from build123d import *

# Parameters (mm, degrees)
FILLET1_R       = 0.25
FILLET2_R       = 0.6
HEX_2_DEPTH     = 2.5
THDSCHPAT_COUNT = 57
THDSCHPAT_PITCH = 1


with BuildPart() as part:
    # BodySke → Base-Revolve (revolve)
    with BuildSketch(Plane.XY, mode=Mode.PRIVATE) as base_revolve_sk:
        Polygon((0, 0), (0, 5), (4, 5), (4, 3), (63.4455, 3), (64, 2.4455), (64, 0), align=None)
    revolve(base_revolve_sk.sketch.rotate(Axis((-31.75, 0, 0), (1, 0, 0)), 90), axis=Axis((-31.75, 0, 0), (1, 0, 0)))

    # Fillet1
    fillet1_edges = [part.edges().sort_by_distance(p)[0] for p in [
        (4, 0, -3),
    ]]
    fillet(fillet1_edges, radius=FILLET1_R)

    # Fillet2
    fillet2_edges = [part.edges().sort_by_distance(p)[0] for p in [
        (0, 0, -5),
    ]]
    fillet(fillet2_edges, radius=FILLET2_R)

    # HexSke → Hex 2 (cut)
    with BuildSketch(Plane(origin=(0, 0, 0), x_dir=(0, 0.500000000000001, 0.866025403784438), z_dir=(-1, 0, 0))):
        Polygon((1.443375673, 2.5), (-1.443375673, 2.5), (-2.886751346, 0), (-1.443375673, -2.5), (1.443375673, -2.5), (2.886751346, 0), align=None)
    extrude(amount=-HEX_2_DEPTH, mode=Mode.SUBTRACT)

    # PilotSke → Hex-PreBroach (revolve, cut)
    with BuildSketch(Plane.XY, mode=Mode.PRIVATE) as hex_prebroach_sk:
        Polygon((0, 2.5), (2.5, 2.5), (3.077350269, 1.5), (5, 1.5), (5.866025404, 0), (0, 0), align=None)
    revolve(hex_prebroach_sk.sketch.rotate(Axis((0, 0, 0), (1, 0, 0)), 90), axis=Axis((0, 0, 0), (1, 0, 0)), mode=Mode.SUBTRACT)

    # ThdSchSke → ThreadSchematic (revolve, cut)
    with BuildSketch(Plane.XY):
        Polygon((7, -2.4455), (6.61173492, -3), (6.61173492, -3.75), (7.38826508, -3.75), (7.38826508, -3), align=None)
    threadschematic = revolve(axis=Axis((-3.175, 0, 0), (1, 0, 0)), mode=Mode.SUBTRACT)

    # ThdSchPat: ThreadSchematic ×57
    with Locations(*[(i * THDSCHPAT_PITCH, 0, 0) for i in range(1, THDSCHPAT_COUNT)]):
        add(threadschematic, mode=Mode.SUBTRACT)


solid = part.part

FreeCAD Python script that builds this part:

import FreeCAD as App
import Part
import Sketcher
from FreeCAD import Vector
Q = App.Units.Quantity


def edges_at(feature, points):
    """Names of the edges that pass closest to the given points."""
    edges = feature.Shape.Edges
    near = lambda p: min(range(len(edges)), key=lambda i: edges[i].distToShape(Part.Vertex(*p))[0])
    return sorted({f"Edge{near(p) + 1}" for p in points})

doc = App.newDocument("Part")
body = doc.addObject("PartDesign::Body", "Body")

sketch1 = body.newObject("Sketcher::SketchObject", "Sketch")
sketch1.AttachmentSupport = (doc.getObject("XY_Plane"), [""])
sketch1.MapMode = "FlatFace"
sketch1.addGeometry([
    Part.LineSegment(Vector(0, 5, 0), Vector(0, 0, 0)),
    Part.LineSegment(Vector(0, 0, 0), Vector(64, 0, 0)),
    Part.LineSegment(Vector(64, 0, 0), Vector(64, 2.4, 0)),
    Part.LineSegment(Vector(64, 2.4, 0), Vector(63.4, 3, 0)),
    Part.LineSegment(Vector(63.4, 3, 0), Vector(4, 3, 0)),
    Part.LineSegment(Vector(4, 3, 0), Vector(4, 5, 0)),
    Part.LineSegment(Vector(4, 5, 0), Vector(0, 5, 0)),
], False)
sketch1.addConstraint([
    Sketcher.Constraint("Coincident", 0, 2, 1, 1),
    Sketcher.Constraint("Coincident", 1, 2, 2, 1),
    Sketcher.Constraint("Coincident", 2, 2, 3, 1),
    Sketcher.Constraint("Coincident", 3, 2, 4, 1),
    Sketcher.Constraint("Coincident", 4, 2, 5, 1),
    Sketcher.Constraint("Coincident", 5, 2, 6, 1),
    Sketcher.Constraint("Coincident", 6, 2, 0, 1),
    Sketcher.Constraint("Vertical", 0),
    Sketcher.Constraint("Horizontal", 1),
    Sketcher.Constraint("Vertical", 2),
    Sketcher.Constraint("Horizontal", 4),
    Sketcher.Constraint("Vertical", 5),
    Sketcher.Constraint("Horizontal", 6),
    Sketcher.Constraint("Coincident", 0, 2, -1, 1),
    Sketcher.Constraint("DistanceX", 1, 1, 1, 2, 64.0),
    Sketcher.Constraint("DistanceX", 6, 2, 6, 1, 4.0),
    Sketcher.Constraint("DistanceY", 0, 2, 0, 1, 5.0),
    Sketcher.Constraint("DistanceY", 5, 1, 5, 2, 2.0),
    Sketcher.Constraint("Angle", 3, Q("135 deg")),
    Sketcher.Constraint("DistanceX", 4, 2, 4, 1, 59.4455),
])
revolution = body.newObject("PartDesign::Revolution", "Revolution")
revolution.Profile = sketch1
revolution.ReferenceAxis = (sketch1, ["H_Axis"])
revolution.Angle = 360
doc.recompute()

fillet = body.newObject("PartDesign::Fillet", "Fillet")
fillet.Base = (revolution, edges_at(revolution, [(4, 0, -3)]))
fillet.Radius = 0.25
doc.recompute()

fillet2 = body.newObject("PartDesign::Fillet", "Fillet001")
fillet2.Base = (fillet, edges_at(fillet, [(0, 0, -5)]))
fillet2.Radius = 0.6

sketch2 = body.newObject("Sketcher::SketchObject", "Sketch001")
sketch2.AttachmentSupport = (doc.getObject("YZ_Plane"), [""])
sketch2.MapMode = "FlatFace"
sketch2.addGeometry([
    Part.LineSegment(Vector(2.9, 0, 0), Vector(1.4, -2.5, 0)),
    Part.LineSegment(Vector(1.4, -2.5, 0), Vector(-1.4, -2.5, 0)),
    Part.LineSegment(Vector(-1.4, -2.5, 0), Vector(-2.9, 0, 0)),
    Part.LineSegment(Vector(-2.9, 0, 0), Vector(-1.4, 2.5, 0)),
    Part.LineSegment(Vector(-1.4, 2.5, 0), Vector(1.4, 2.5, 0)),
    Part.LineSegment(Vector(1.4, 2.5, 0), Vector(2.9, 0, 0)),
], False)
sketch2.addConstraint([
    Sketcher.Constraint("Coincident", 0, 2, 1, 1),
    Sketcher.Constraint("Coincident", 1, 2, 2, 1),
    Sketcher.Constraint("Coincident", 2, 2, 3, 1),
    Sketcher.Constraint("Coincident", 3, 2, 4, 1),
    Sketcher.Constraint("Coincident", 4, 2, 5, 1),
    Sketcher.Constraint("Coincident", 5, 2, 0, 1),
    Sketcher.Constraint("Horizontal", 1),
    Sketcher.Constraint("Horizontal", 4),
    Sketcher.Constraint("Symmetric", 0, 2, 3, 2, -1, 1),
    Sketcher.Constraint("Symmetric", 2, 2, 5, 2, -1, 1),
    Sketcher.Constraint("PointOnObject", 2, 2, -1),
    Sketcher.Constraint("Parallel", 2, 5),
    Sketcher.Constraint("Vertical", 1, 2, 3, 2),
    Sketcher.Constraint("Angle", 0, Q("-120 deg")),
    Sketcher.Constraint("DistanceY", 1, 2, 3, 2, 5.0),
    Sketcher.Constraint("DistanceX", 1, 2, 1, 1, 2.886751),
])
pocket1 = body.newObject("PartDesign::Pocket", "Pocket")
pocket1.Profile = sketch2
pocket1.Length = 2.5
pocket1.Reversed = True

sketch3 = body.newObject("Sketcher::SketchObject", "Sketch002")
sketch3.AttachmentSupport = (doc.getObject("XY_Plane"), [""])
sketch3.MapMode = "FlatFace"
sketch3.addGeometry([
    Part.LineSegment(Vector(2.5, 2.5, 0), Vector(0, 2.5, 0)),
    Part.LineSegment(Vector(0, 2.5, 0), Vector(0, 0, 0)),
    Part.LineSegment(Vector(0, 0, 0), Vector(5.9, 0, 0)),
    Part.LineSegment(Vector(5.9, 0, 0), Vector(5, 1.5, 0)),
    Part.LineSegment(Vector(5, 1.5, 0), Vector(3.1, 1.5, 0)),
    Part.LineSegment(Vector(3.1, 1.5, 0), Vector(2.5, 2.5, 0)),
], False)
sketch3.addConstraint([
    Sketcher.Constraint("Coincident", 0, 2, 1, 1),
    Sketcher.Constraint("Coincident", 1, 2, 2, 1),
    Sketcher.Constraint("Coincident", 2, 2, 3, 1),
    Sketcher.Constraint("Coincident", 3, 2, 4, 1),
    Sketcher.Constraint("Coincident", 4, 2, 5, 1),
    Sketcher.Constraint("Coincident", 5, 2, 0, 1),
    Sketcher.Constraint("Horizontal", 0),
    Sketcher.Constraint("Vertical", 1),
    Sketcher.Constraint("Horizontal", 2),
    Sketcher.Constraint("Horizontal", 4),
    Sketcher.Constraint("Coincident", 1, 2, -1, 1),
    Sketcher.Constraint("Parallel", 3, 5),
    Sketcher.Constraint("Equal", 0, 1),
    Sketcher.Constraint("Angle", 3, Q("120 deg")),
    Sketcher.Constraint("DistanceX", 0, 2, 0, 1, 2.5),
    Sketcher.Constraint("DistanceX", -1, 1, 3, 2, 5.0),
    Sketcher.Constraint("DistanceY", 3, 2, 0, 2, 1.0),
])
groove = body.newObject("PartDesign::Groove", "Groove")
groove.Profile = sketch3
groove.ReferenceAxis = (sketch3, ["H_Axis"])
groove.Angle = 360

sketch4 = body.newObject("Sketcher::SketchObject", "Sketch003")
sketch4.AttachmentSupport = (doc.getObject("XY_Plane"), [""])
sketch4.MapMode = "FlatFace"
sketch4.addGeometry([
    Part.LineSegment(Vector(7, -2.4, 0), Vector(6.6, -3, 0)),
    Part.LineSegment(Vector(6.6, -3, 0), Vector(6.6, -3.8, 0)),
    Part.LineSegment(Vector(6.6, -3.8, 0), Vector(7.4, -3.8, 0)),
    Part.LineSegment(Vector(7.4, -3.8, 0), Vector(7.4, -3, 0)),
    Part.LineSegment(Vector(7.4, -3, 0), Vector(7, -2.4, 0)),
], False)
sketch4.addConstraint([
    Sketcher.Constraint("Coincident", 0, 2, 1, 1),
    Sketcher.Constraint("Coincident", 1, 2, 2, 1),
    Sketcher.Constraint("Coincident", 2, 2, 3, 1),
    Sketcher.Constraint("Coincident", 3, 2, 4, 1),
    Sketcher.Constraint("Coincident", 4, 2, 0, 1),
    Sketcher.Constraint("Vertical", 1),
    Sketcher.Constraint("Horizontal", 2),
    Sketcher.Constraint("Vertical", 3),
    Sketcher.Constraint("Horizontal", 0, 2, 3, 2),
    Sketcher.Constraint("Equal", 0, 4),
    Sketcher.Constraint("Angle", 0, Q("-125 deg")),
    Sketcher.Constraint("DistanceY", 0, 2, -1, 1, 3.0),
    Sketcher.Constraint("DistanceX", -1, 1, 4, 2, 7.0),
    Sketcher.Constraint("DistanceY", 1, 2, 1, 1, 0.75),
    Sketcher.Constraint("DistanceX", 2, 1, 2, 2, 0.77653),
])
groove2 = body.newObject("PartDesign::Groove", "Groove001")
groove2.Profile = sketch4
groove2.ReferenceAxis = (sketch4, ["H_Axis"])
groove2.Angle = 360
doc.recompute()

linearpattern = body.newObject("PartDesign::LinearPattern", "LinearPattern")
linearpattern.Originals = [groove2]
linearpattern.Direction = (doc.getObject("X_Axis"), [""])
linearpattern.Mode = "offset"
linearpattern.Offset = 1
linearpattern.Occurrences = 57
body.Tip = linearpattern

doc.recompute()
